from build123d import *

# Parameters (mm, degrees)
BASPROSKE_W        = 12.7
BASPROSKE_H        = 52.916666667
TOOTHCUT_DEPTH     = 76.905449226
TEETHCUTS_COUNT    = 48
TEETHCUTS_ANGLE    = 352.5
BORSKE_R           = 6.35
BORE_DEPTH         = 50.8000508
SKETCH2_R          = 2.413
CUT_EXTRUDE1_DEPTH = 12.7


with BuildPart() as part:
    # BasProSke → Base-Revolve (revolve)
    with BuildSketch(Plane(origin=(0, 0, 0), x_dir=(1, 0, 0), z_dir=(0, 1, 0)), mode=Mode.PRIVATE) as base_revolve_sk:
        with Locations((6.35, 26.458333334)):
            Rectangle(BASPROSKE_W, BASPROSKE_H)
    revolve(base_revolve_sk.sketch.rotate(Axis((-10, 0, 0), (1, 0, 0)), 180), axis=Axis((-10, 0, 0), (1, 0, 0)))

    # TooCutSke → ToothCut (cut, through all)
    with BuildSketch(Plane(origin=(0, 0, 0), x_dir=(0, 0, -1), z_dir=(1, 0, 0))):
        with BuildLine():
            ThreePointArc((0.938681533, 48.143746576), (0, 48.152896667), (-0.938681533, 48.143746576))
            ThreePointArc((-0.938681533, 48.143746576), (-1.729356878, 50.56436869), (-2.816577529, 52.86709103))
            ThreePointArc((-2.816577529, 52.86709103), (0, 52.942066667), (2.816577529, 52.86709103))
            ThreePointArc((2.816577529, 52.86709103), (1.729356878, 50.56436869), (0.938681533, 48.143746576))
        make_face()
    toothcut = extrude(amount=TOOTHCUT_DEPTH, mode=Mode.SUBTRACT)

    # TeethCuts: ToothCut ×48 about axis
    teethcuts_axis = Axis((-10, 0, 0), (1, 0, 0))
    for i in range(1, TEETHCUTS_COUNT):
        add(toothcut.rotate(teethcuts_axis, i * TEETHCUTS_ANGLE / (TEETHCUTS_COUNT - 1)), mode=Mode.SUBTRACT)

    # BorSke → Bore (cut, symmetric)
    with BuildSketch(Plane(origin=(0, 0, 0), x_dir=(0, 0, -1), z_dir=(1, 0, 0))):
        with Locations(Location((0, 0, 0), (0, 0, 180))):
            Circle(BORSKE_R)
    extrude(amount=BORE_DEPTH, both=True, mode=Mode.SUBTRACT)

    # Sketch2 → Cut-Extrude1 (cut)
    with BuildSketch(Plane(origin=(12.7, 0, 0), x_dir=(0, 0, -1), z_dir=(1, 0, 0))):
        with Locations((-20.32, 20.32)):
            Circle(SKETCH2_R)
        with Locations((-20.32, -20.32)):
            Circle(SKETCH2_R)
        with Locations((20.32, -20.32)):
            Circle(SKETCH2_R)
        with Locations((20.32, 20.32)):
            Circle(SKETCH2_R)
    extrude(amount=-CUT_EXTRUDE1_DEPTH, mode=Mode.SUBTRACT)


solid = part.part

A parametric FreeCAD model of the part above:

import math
import FreeCAD as App
import Part
import Sketcher
Q = App.Units.Quantity

doc = App.newDocument("Part")
body = doc.addObject("PartDesign::Body", "Body")

# Sketch on XZ plane
sketch1 = doc.addObject("Sketcher::SketchObject", "Sketch")
body.addObject(sketch1)
sketch1.AttachmentSupport = (doc.XZ_Plane, [""])
sketch1.MapMode = "FlatFace"
sketch1.addGeometry([
    Part.LineSegment(App.Vector(0, -52.916667, 0), App.Vector(0, 0, 0)),
    Part.LineSegment(App.Vector(0, 0, 0), App.Vector(12.7, 0, 0)),
    Part.LineSegment(App.Vector(12.7, 0, 0), App.Vector(12.7, -52.916667, 0)),
    Part.LineSegment(App.Vector(12.7, -52.916667, 0), App.Vector(0, -52.916667, 0)),
], False)
sketch1.addConstraint([
    Sketcher.Constraint("Coincident", 0, 2, 1, 1),
    Sketcher.Constraint("Coincident", 1, 2, 2, 1),
    Sketcher.Constraint("Coincident", 2, 2, 3, 1),
    Sketcher.Constraint("Coincident", 3, 2, 0, 1),
    Sketcher.Constraint("Vertical", 0),
    Sketcher.Constraint("Horizontal", 1),
    Sketcher.Constraint("Vertical", 2),
    Sketcher.Constraint("Horizontal", 3),
    Sketcher.Constraint("Coincident", 0, 2, -1, 1),
    Sketcher.Constraint("DistanceX", 1, 1, 1, 2, Q("0.5 in")),
    Sketcher.Constraint("DistanceY", 0, 1, 0, 2, Q("52.916667 mm")),
])
revolution = doc.addObject("PartDesign::Revolution", "Revolution")
body.addObject(revolution)
revolution.Profile = sketch1
revolution.ReferenceAxis = (sketch1, ["H_Axis"])
revolution.Angle = 360

# Sketch on YZ plane
sketch2 = doc.addObject("Sketcher::SketchObject", "Sketch001")
body.addObject(sketch2)
sketch2.AttachmentSupport = (doc.YZ_Plane, [""])
sketch2.MapMode = "FlatFace"
sketch2.addGeometry([
    Part.ArcOfCircle(Part.Circle(App.Vector(0.000002, 0, 0), App.Vector(0, 0, 1), 48.152895), math.radians(-1.116982), math.radians(1.116982)),
    Part.ArcOfCircle(Part.Circle(App.Vector(43.057158, -20.611735, 0), App.Vector(0, 0, 1), 20.32), math.radians(61.133378), math.radians(75.5033)),
    Part.ArcOfCircle(Part.Circle(App.Vector(0, 0, 0), App.Vector(0, 0, 1), 52.942067), math.radians(-3.04964), math.radians(3.04964)),
    Part.ArcOfCircle(Part.Circle(App.Vector(43.057158, 20.611735, 0), App.Vector(0, 0, 1), 20.32), math.radians(-75.5033), math.radians(-61.133378)),
], False)
sketch2.addConstraint([
    Sketcher.Constraint("Coincident", 0, 1, 1, 2),
    Sketcher.Constraint("Coincident", 1, 1, 2, 1),
    Sketcher.Constraint("Coincident", 2, 2, 3, 2),
    Sketcher.Constraint("Coincident", 3, 1, 0, 2),
    Sketcher.Constraint("Coincident", 0, 3, -1, 1),
    Sketcher.Constraint("Coincident", 2, 3, -1, 1),
    Sketcher.Constraint("Equal", 1, 3),
    Sketcher.Constraint("Symmetric", 1, 3, 3, 3, -1),
    Sketcher.Constraint("Radius", 1, Q("0.8 in")),
    Sketcher.Constraint("Radius", 0, Q("48.152895 mm")),
    Sketcher.Constraint("Radius", 2, Q("52.942067 mm")),
    Sketcher.Constraint("DistanceX", -1, 1, 1, 3, Q("43.057158 mm")),
    Sketcher.Constraint("DistanceY", 0, 1, -1, 1, Q("0.938682 mm")),
])
pocket1 = doc.addObject("PartDesign::Pocket", "Pocket")
body.addObject(pocket1)
pocket1.Profile = sketch2
pocket1.Type = "ThroughAll"
pocket1.Reversed = True
doc.recompute()

polarpattern = doc.addObject("PartDesign::PolarPattern", "PolarPattern")
body.addObject(polarpattern)
polarpattern.Originals = [pocket1]
polarpattern.Axis = (doc.X_Axis, [""])
polarpattern.Angle = 360
polarpattern.Occurrences = 48
body.Tip = polarpattern

# Sketch on YZ plane
sketch3 = doc.addObject("Sketcher::SketchObject", "Sketch002")
body.addObject(sketch3)
sketch3.AttachmentSupport = (doc.YZ_Plane, [""])
sketch3.MapMode = "FlatFace"
sketch3.addGeometry(Part.Circle(App.Vector(0, 0, 0), App.Vector(0, 0, 1), 6.35), False)
sketch3.addConstraint([
    Sketcher.Constraint("Coincident", 0, 3, -1, 1),
    Sketcher.Constraint("Diameter", 0, Q("0.5 in")),
])
pocket2 = doc.addObject("PartDesign::Pocket", "Pocket001")
body.addObject(pocket2)
pocket2.Profile = sketch3
pocket2.Length = 101.600102
pocket2.Midplane = True

# Sketch on YZ plane
sketch4 = doc.addObject("Sketcher::SketchObject", "Sketch003")
body.addObject(sketch4)
sketch4.AttachmentSupport = (doc.YZ_Plane, [""])
sketch4.MapMode = "FlatFace"
sketch4.AttachmentOffset = App.Placement(App.Vector(0, 0, 0.5 * 25.4), App.Rotation())
sketch4.addGeometry([
    Part.Circle(App.Vector(20.32, 20.32, 0), App.Vector(0, 0, 1), 2.413),
    Part.Circle(App.Vector(-20.32, 20.32, 0), App.Vector(0, 0, 1), 2.413),
    Part.Circle(App.Vector(-20.32, -20.32, 0), App.Vector(0, 0, 1), 2.413),
    Part.Circle(App.Vector(20.32, -20.32, 0), App.Vector(0, 0, 1), 2.413),
], False)
sketch4.addConstraint([
    Sketcher.Constraint("Equal", 0, 1),
    Sketcher.Constraint("Equal", 1, 2),
    Sketcher.Constraint("Equal", 2, 3),
    Sketcher.Constraint("Symmetric", 0, 3, 2, 3, -1, 1),
    Sketcher.Constraint("Symmetric", 1, 3, 3, 3, -1, 1),
    Sketcher.Constraint("Symmetric", 0, 3, 1, 3, -2),
    Sketcher.Constraint("Diameter", 0, Q("0.19 in")),
    Sketcher.Constraint("DistanceX", -1, 1, 0, 3, Q("0.8 in")),
    Sketcher.Constraint("DistanceY", -1, 1, 0, 3, Q("0.8 in")),
])
pocket3 = doc.addObject("PartDesign::Pocket", "Pocket002")
body.addObject(pocket3)
pocket3.Profile = sketch4
pocket3.Length = Q("0.5 in")

doc.recompute()
